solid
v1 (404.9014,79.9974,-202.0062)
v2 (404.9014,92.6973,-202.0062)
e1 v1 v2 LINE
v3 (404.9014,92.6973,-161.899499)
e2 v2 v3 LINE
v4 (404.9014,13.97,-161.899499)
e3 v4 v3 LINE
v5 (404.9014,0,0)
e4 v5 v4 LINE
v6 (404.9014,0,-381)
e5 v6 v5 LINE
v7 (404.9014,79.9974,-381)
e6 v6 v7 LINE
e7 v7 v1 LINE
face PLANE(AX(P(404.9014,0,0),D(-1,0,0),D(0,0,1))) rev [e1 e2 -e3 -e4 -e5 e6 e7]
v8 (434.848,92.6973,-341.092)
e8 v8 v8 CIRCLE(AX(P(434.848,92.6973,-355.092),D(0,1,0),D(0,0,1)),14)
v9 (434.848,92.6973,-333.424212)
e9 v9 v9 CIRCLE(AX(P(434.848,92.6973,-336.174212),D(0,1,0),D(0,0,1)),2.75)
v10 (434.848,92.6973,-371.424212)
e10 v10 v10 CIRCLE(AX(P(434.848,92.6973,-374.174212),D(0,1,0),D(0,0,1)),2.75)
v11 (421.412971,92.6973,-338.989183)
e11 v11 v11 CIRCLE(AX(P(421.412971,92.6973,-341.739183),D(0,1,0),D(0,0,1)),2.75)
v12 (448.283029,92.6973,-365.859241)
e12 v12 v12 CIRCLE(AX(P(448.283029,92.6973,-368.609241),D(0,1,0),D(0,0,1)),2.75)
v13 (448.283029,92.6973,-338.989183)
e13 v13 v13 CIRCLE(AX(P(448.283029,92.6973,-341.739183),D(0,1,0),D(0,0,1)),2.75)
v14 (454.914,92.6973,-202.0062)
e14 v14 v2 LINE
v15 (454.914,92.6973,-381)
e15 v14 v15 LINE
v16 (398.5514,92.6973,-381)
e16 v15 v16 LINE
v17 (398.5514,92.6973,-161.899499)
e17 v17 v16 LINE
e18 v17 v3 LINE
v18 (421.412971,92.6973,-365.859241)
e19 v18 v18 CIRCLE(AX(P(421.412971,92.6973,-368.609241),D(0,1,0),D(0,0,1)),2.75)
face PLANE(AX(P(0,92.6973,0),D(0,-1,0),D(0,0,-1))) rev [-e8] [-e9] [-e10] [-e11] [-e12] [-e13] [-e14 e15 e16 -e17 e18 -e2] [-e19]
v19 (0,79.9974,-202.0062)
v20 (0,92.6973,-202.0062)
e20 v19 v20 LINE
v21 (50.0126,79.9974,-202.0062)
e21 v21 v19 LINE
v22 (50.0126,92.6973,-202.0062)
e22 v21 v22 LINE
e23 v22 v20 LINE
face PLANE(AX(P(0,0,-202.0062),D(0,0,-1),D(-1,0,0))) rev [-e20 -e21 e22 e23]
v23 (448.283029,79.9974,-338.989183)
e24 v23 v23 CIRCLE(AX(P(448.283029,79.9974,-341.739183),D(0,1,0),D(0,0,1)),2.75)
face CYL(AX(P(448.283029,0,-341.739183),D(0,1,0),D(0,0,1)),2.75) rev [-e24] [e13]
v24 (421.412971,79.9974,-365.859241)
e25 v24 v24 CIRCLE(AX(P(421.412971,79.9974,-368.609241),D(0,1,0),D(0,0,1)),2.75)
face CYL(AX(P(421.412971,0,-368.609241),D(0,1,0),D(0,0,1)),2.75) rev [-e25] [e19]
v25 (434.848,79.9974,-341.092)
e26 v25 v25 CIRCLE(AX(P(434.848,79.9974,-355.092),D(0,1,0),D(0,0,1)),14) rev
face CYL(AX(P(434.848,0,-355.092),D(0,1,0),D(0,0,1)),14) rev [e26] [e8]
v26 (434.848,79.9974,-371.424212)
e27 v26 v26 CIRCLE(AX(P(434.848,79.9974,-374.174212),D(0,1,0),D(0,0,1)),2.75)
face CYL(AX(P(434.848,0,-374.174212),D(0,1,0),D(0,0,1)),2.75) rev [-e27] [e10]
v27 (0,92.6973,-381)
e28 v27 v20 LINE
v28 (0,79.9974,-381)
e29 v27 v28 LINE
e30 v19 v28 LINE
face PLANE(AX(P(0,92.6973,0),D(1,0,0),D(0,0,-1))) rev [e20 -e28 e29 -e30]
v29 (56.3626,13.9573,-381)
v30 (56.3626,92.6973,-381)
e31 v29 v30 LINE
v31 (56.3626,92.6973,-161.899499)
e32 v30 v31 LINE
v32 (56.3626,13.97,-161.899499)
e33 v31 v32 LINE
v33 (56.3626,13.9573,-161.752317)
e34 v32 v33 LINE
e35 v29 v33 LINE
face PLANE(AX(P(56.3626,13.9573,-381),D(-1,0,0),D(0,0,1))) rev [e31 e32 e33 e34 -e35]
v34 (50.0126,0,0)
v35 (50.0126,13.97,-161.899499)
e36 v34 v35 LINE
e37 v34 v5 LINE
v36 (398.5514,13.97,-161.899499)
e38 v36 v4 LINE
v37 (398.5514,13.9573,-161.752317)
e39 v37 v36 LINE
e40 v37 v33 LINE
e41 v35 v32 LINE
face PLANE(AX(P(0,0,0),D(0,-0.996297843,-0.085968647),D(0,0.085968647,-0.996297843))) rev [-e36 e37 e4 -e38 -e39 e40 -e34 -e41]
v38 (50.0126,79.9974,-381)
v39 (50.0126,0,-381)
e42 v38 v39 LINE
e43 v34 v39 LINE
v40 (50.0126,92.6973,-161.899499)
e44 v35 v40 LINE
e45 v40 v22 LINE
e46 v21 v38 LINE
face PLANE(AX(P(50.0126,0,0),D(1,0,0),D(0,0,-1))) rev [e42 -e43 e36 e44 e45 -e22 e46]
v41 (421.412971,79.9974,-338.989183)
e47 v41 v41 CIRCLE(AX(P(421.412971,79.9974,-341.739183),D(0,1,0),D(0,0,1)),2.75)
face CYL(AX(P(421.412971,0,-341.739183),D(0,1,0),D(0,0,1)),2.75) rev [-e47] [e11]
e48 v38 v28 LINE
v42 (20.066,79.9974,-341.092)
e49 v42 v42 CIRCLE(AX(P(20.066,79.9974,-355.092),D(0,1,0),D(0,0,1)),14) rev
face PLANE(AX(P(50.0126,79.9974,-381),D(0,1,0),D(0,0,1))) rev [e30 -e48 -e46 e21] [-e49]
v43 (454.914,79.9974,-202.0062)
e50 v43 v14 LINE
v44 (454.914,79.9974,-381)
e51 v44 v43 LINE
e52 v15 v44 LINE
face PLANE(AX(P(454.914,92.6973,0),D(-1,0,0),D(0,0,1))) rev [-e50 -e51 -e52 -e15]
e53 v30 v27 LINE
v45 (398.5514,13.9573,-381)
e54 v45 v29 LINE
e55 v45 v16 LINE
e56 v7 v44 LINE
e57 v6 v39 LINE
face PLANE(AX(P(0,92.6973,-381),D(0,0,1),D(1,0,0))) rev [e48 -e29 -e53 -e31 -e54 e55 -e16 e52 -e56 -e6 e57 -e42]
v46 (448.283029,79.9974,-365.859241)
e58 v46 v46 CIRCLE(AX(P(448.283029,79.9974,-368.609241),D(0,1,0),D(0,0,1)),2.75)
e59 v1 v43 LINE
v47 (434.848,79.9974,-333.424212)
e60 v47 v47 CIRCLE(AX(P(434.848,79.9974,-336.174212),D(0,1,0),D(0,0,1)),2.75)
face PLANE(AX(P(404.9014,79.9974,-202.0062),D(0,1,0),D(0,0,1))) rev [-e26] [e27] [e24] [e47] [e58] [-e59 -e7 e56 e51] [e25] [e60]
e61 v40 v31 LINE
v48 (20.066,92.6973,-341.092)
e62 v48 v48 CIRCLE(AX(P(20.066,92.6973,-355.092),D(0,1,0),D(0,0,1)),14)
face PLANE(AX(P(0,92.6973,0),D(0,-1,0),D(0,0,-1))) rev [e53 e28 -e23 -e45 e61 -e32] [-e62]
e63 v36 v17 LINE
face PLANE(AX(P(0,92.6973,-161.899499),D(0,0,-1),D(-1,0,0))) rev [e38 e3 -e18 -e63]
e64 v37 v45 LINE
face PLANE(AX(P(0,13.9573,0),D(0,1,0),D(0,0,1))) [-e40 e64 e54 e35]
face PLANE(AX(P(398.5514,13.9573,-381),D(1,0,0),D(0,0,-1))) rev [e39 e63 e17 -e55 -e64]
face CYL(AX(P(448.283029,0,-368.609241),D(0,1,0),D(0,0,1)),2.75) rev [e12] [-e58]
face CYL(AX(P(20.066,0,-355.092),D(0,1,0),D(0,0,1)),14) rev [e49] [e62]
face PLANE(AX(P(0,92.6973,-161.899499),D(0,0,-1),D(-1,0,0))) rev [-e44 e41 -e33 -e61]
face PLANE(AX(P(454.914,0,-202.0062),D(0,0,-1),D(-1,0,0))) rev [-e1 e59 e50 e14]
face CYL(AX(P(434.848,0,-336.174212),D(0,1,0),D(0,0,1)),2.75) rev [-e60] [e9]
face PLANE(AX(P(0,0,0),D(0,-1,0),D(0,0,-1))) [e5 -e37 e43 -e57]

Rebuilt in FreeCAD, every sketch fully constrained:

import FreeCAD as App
import Part
import Sketcher

V = App.Vector
Q = App.Units.Quantity

doc = App.newDocument("Part")
body = doc.addObject("PartDesign::Body", "Body")

sketch1 = body.newObject("Sketcher::SketchObject", "Sketch")
sketch1.AttachmentSupport = (doc.getObject("XZ_Plane"), [""])
sketch1.MapMode = "FlatFace"
sketch1.addGeometry(Part.LineSegment(V(0, -381, 0), V(0, 0, 0)), False)
sketch1.addGeometry(Part.LineSegment(V(0, 0, 0), V(455, 0, 0)), False)
sketch1.addGeometry(Part.LineSegment(V(455, 0, 0), V(455, -381, 0)), False)
sketch1.addGeometry(Part.LineSegment(V(455, -381, 0), V(0, -381, 0)), False)
sketch1.addConstraint(Sketcher.Constraint("Coincident", 0, 2, 1, 1))
sketch1.addConstraint(Sketcher.Constraint("Coincident", 1, 2, 2, 1))
sketch1.addConstraint(Sketcher.Constraint("Coincident", 2, 2, 3, 1))
sketch1.addConstraint(Sketcher.Constraint("Coincident", 3, 2, 0, 1))
sketch1.addConstraint(Sketcher.Constraint("Vertical", 0))
sketch1.addConstraint(Sketcher.Constraint("Horizontal", 1))
sketch1.addConstraint(Sketcher.Constraint("Vertical", 2))
sketch1.addConstraint(Sketcher.Constraint("Horizontal", 3))
sketch1.addConstraint(Sketcher.Constraint("Coincident", 0, 2, -1, 1))
sketch1.addConstraint(Sketcher.Constraint("DistanceY", 0, 1, 0, 2, Q("15 in")))
sketch1.addConstraint(Sketcher.Constraint("DistanceX", 1, 1, 1, 2, Q("17.91 in")))
pad1 = body.newObject("PartDesign::Pad", "Pad")
pad1.Profile = sketch1
pad1.Length = Q("3.6495 in")
pad1.Reversed = True

sketch2 = body.newObject("Sketcher::SketchObject", "Sketch001")
sketch2.AttachmentSupport = (doc.getObject("XZ_Plane"), [""])
sketch2.MapMode = "FlatFace"
sketch2.AttachmentOffset = App.Placement(V(0, 0, -3.6495 * 25.4), App.Rotation())
sketch2.addGeometry(Part.LineSegment(V(405, -202, 0), V(405, 0, 0)), False)
sketch2.addGeometry(Part.LineSegment(V(405, 0, 0), V(455, 0, 0)), False)
sketch2.addGeometry(Part.LineSegment(V(455, 0, 0), V(455, -202, 0)), False)
sketch2.addGeometry(Part.LineSegment(V(455, -202, 0), V(405, -202, 0)), False)
sketch2.addGeometry(Part.LineSegment(V(0, -202, 0), V(0, 0, 0)), False)
sketch2.addGeometry(Part.LineSegment(V(0, 0, 0), V(50, 0, 0)), False)
sketch2.addGeometry(Part.LineSegment(V(50, 0, 0), V(50, -202, 0)), False)
sketch2.addGeometry(Part.LineSegment(V(50, -202, 0), V(0, -202, 0)), False)
sketch2.addConstraint(Sketcher.Constraint("Coincident", 0, 2, 1, 1))
sketch2.addConstraint(Sketcher.Constraint("Coincident", 1, 2, 2, 1))
sketch2.addConstraint(Sketcher.Constraint("Coincident", 2, 2, 3, 1))
sketch2.addConstraint(Sketcher.Constraint("Coincident", 3, 2, 0, 1))
sketch2.addConstraint(Sketcher.Constraint("Coincident", 4, 2, 5, 1))
sketch2.addConstraint(Sketcher.Constraint("Coincident", 5, 2, 6, 1))
sketch2.addConstraint(Sketcher.Constraint("Coincident", 6, 2, 7, 1))
sketch2.addConstraint(Sketcher.Constraint("Coincident", 7, 2, 4, 1))
sketch2.addConstraint(Sketcher.Constraint("Vertical", 0))
sketch2.addConstraint(Sketcher.Constraint("Horizontal", 1))
sketch2.addConstraint(Sketcher.Constraint("Vertical", 2))
sketch2.addConstraint(Sketcher.Constraint("Horizontal", 3))
sketch2.addConstraint(Sketcher.Constraint("Vertical", 4))
sketch2.addConstraint(Sketcher.Constraint("Horizontal", 5))
sketch2.addConstraint(Sketcher.Constraint("Vertical", 6))
sketch2.addConstraint(Sketcher.Constraint("Horizontal", 7))
sketch2.addConstraint(Sketcher.Constraint("Coincident", 4, 2, -1, 1))
sketch2.addConstraint(Sketcher.Constraint("PointOnObject", 0, 2, -1))
sketch2.addConstraint(Sketcher.Constraint("Horizontal", 3, 2, 6, 2))
sketch2.addConstraint(Sketcher.Constraint("Equal", 3, 5))
sketch2.addConstraint(Sketcher.Constraint("DistanceX", 1, 1, 1, 2, Q("1.969 in")))
sketch2.addConstraint(Sketcher.Constraint("DistanceY", 0, 1, 0, 2, Q("7.953 in")))
sketch2.addConstraint(Sketcher.Constraint("DistanceX", -1, 1, 1, 2, Q("17.91 in")))
pocket1 = body.newObject("PartDesign::Pocket", "Pocket")
pocket1.Profile = sketch2
pocket1.Type = "ThroughAll"
pocket1.Reversed = True

sketch3 = body.newObject("Sketcher::SketchObject", "Sketch002")
sketch3.AttachmentSupport = (doc.getObject("XZ_Plane"), [""])
sketch3.MapMode = "FlatFace"
sketch3.AttachmentOffset = App.Placement(V(0, 0, -3.6495 * 25.4), App.Rotation())
sketch3.addGeometry(Part.Circle(V(20, -355, 0), V(0, 0, 1), 14), False)
sketch3.addGeometry(Part.Circle(V(435, -355, 0), V(0, 0, 1), 14), False)
sketch3.addConstraint(Sketcher.Constraint("Equal", 0, 1))
sketch3.addConstraint(Sketcher.Constraint("Horizontal", 0, 3, 1, 3))
sketch3.addConstraint(Sketcher.Constraint("Diameter", 0, Q("28 mm")))
sketch3.addConstraint(Sketcher.Constraint("DistanceX", -1, 1, 0, 3, Q("0.79 in")))
sketch3.addConstraint(Sketcher.Constraint("DistanceY", 0, 3, -1, 1, Q("13.98 in")))
sketch3.addConstraint(Sketcher.Constraint("DistanceX", -1, 1, 1, 3, Q("17.12 in")))
pocket2 = body.newObject("PartDesign::Pocket", "Pocket001")
pocket2.Profile = sketch3
pocket2.Type = "ThroughAll"
pocket2.Reversed = True

sketch4 = body.newObject("Sketcher::SketchObject", "Sketch003")
sketch4.AttachmentSupport = (doc.getObject("XZ_Plane"), [""])
sketch4.MapMode = "FlatFace"
sketch4.AttachmentOffset = App.Placement(V(0, 0, -3.6495 * 25.4), App.Rotation())
sketch4.addGeometry(Part.LineSegment(V(56, -381, 0), V(56, 0, 0)), False)
sketch4.addGeometry(Part.LineSegment(V(56, 0, 0), V(399, 0, 0)), False)
sketch4.addGeometry(Part.LineSegment(V(399, 0, 0), V(399, -381, 0)), False)
sketch4.addGeometry(Part.LineSegment(V(399, -381, 0), V(56, -381, 0)), False)
sketch4.addConstraint(Sketcher.Constraint("Coincident", 0, 2, 1, 1))
sketch4.addConstraint(Sketcher.Constraint("Coincident", 1, 2, 2, 1))
sketch4.addConstraint(Sketcher.Constraint("Coincident", 2, 2, 3, 1))
sketch4.addConstraint(Sketcher.Constraint("Coincident", 3, 2, 0, 1))
sketch4.addConstraint(Sketcher.Constraint("Vertical", 0))
sketch4.addConstraint(Sketcher.Constraint("Horizontal", 1))
sketch4.addConstraint(Sketcher.Constraint("Vertical", 2))
sketch4.addConstraint(Sketcher.Constraint("Horizontal", 3))
sketch4.addConstraint(Sketcher.Constraint("PointOnObject", 0, 2, -1))
sketch4.addConstraint(Sketcher.Constraint("DistanceY", 0, 1, 0, 2, Q("15 in")))
sketch4.addConstraint(Sketcher.Constraint("DistanceX", 1, 1, 1, 2, Q("13.472 in")))
sketch4.addConstraint(Sketcher.Constraint("DistanceX", -1, 1, 0, 2, Q("2.219 in")))
pocket3 = body.newObject("PartDesign::Pocket", "Pocket002")
pocket3.Profile = sketch4
pocket3.Length = Q("3.1 in")
pocket3.Reversed = True

sketch5 = body.newObject("Sketcher::SketchObject", "Sketch004")
sketch5.AttachmentSupport = (doc.getObject("YZ_Plane"), [""])
sketch5.MapMode = "FlatFace"
sketch5.AttachmentOffset = App.Placement(V(0, 0, 17.91 * 25.4), App.Rotation())
sketch5.addGeometry(Part.LineSegment(V(80, -202, 0), V(0, -202, 0)), False)
sketch5.addGeometry(Part.LineSegment(V(0, -202, 0), V(0, -381, 0)), False)
sketch5.addGeometry(Part.LineSegment(V(0, -381, 0), V(80, -381, 0)), False)
sketch5.addGeometry(Part.LineSegment(V(80, -381, 0), V(80, -202, 0)), False)
sketch5.addConstraint(Sketcher.Constraint("Coincident", 0, 2, 1, 1))
sketch5.addConstraint(Sketcher.Constraint("Coincident", 1, 2, 2, 1))
sketch5.addConstraint(Sketcher.Constraint("Coincident", 2, 2, 3, 1))
sketch5.addConstraint(Sketcher.Constraint("Coincident", 3, 2, 0, 1))
sketch5.addConstraint(Sketcher.Constraint("Horizontal", 0))
sketch5.addConstraint(Sketcher.Constraint("Vertical", 1))
sketch5.addConstraint(Sketcher.Constraint("Horizontal", 2))
sketch5.addConstraint(Sketcher.Constraint("Vertical", 3))
sketch5.addConstraint(Sketcher.Constraint("PointOnObject", 0, 2, -2))
sketch5.addConstraint(Sketcher.Constraint("DistanceY", 1, 2, -1, 1, Q("15 in")))
sketch5.addConstraint(Sketcher.Constraint("DistanceY", 1, 2, 1, 1, Q("7.047 in")))
sketch5.addConstraint(Sketcher.Constraint("DistanceX", 0, 2, 0, 1, Q("79.9974 mm")))
pocket4 = body.newObject("PartDesign::Pocket", "Pocket003")
pocket4.Profile = sketch5
pocket4.Length = Q("1.969 in")

sketch6 = body.newObject("Sketcher::SketchObject", "Sketch005")
sketch6.AttachmentSupport = (doc.getObject("YZ_Plane"), [""])
sketch6.MapMode = "FlatFace"
sketch6.addGeometry(Part.LineSegment(V(80, -381, 0), V(0, -381, 0)), False)
sketch6.addGeometry(Part.LineSegment(V(0, -381, 0), V(0, -202, 0)), False)
sketch6.addGeometry(Part.LineSegment(V(0, -202, 0), V(80, -202, 0)), False)
sketch6.addGeometry(Part.LineSegment(V(80, -202, 0), V(80, -381, 0)), False)
sketch6.addConstraint(Sketcher.Constraint("Coincident", 0, 2, 1, 1))
sketch6.addConstraint(Sketcher.Constraint("Coincident", 1, 2, 2, 1))
sketch6.addConstraint(Sketcher.Constraint("Coincident", 2, 2, 3, 1))
sketch6.addConstraint(Sketcher.Constraint("Coincident", 3, 2, 0, 1))
sketch6.addConstraint(Sketcher.Constraint("Horizontal", 0))
sketch6.addConstraint(Sketcher.Constraint("Vertical", 1))
sketch6.addConstraint(Sketcher.Constraint("Horizontal", 2))
sketch6.addConstraint(Sketcher.Constraint("Vertical", 3))
sketch6.addConstraint(Sketcher.Constraint("PointOnObject", 0, 2, -2))
sketch6.addConstraint(Sketcher.Constraint("DistanceY", 0, 2, -1, 1, Q("15 in")))
sketch6.addConstraint(Sketcher.Constraint("DistanceY", 1, 1, 1, 2, Q("7.047 in")))
sketch6.addConstraint(Sketcher.Constraint("DistanceX", 0, 2, 0, 1, Q("79.9974 mm")))
pocket5 = body.newObject("PartDesign::Pocket", "Pocket004")
pocket5.Profile = sketch6
pocket5.Length = Q("1.969 in")
pocket5.Reversed = True

sketch7 = body.newObject("Sketcher::SketchObject", "Sketch006")
sketch7.AttachmentSupport = (doc.getObject("YZ_Plane"), [""])
sketch7.MapMode = "FlatFace"
sketch7.AttachmentOffset = App.Placement(V(0, 0, 15.941 * 25.4), App.Rotation())
sketch7.addGeometry(Part.LineSegment(V(0, 0, 0), V(14, -162, 0)), False)
sketch7.addGeometry(Part.LineSegment(V(14, -162, 0), V(93, -162, 0)), False)
sketch7.addGeometry(Part.LineSegment(V(93, -162, 0), V(93, 0, 0)), False)
sketch7.addGeometry(Part.LineSegment(V(93, 0, 0), V(0, 0, 0)), False)
sketch7.addConstraint(Sketcher.Constraint("Coincident", 0, 2, 1, 1))
sketch7.addConstraint(Sketcher.Constraint("Coincident", 1, 2, 2, 1))
sketch7.addConstraint(Sketcher.Constraint("Coincident", 2, 2, 3, 1))
sketch7.addConstraint(Sketcher.Constraint("Coincident", 3, 2, 0, 1))
sketch7.addConstraint(Sketcher.Constraint("Horizontal", 1))
sketch7.addConstraint(Sketcher.Constraint("Vertical", 2))
sketch7.addConstraint(Sketcher.Constraint("Horizontal", 3))
sketch7.addConstraint(Sketcher.Constraint("Coincident", 3, 2, -1, 1))
sketch7.addConstraint(Sketcher.Constraint("DistanceX", -1, 1, 0, 2, Q("0.55 in")))
sketch7.addConstraint(Sketcher.Constraint("DistanceX", 1, 1, 1, 2, Q("3.0995 in")))
sketch7.addConstraint(Sketcher.Constraint("DistanceY", 2, 1, 2, 2, Q("161.899499 mm")))
pocket6 = body.newObject("PartDesign::Pocket", "Pocket005")
pocket6.Profile = sketch7
pocket6.Type = "ThroughAll"

sketch8 = body.newObject("Sketcher::SketchObject", "Sketch007")
sketch8.AttachmentSupport = (doc.getObject("XZ_Plane"), [""])
sketch8.MapMode = "FlatFace"
sketch8.AttachmentOffset = App.Placement(V(0, 0, -3.6495 * 25.4), App.Rotation())
sketch8.addGeometry(Part.Circle(V(434.8, -374.2, 0), V(0, 0, 1), 2.8), False)
sketch8.addGeometry(Part.Circle(V(448.3, -368.6, 0), V(0, 0, 1), 2.8), False)
sketch8.addGeometry(Part.Circle(V(421.4, -368.6, 0), V(0, 0, 1), 2.8), False)
sketch8.addGeometry(Part.Circle(V(448.3, -341.7, 0), V(0, 0, 1), 2.8), False)
sketch8.addGeometry(Part.Circle(V(434.8, -336.2, 0), V(0, 0, 1), 2.8), False)
sketch8.addGeometry(Part.Circle(V(421.4, -341.7, 0), V(0, 0, 1), 2.8), False)
sketch8.addConstraint(Sketcher.Constraint("Equal", 0, 1))
sketch8.addConstraint(Sketcher.Constraint("Equal", 1, 2))
sketch8.addConstraint(Sketcher.Constraint("Equal", 2, 3))
sketch8.addConstraint(Sketcher.Constraint("Equal", 3, 4))
sketch8.addConstraint(Sketcher.Constraint("Equal", 4, 5))
sketch8.addConstraint(Sketcher.Constraint("Horizontal", 1, 3, 2, 3))
sketch8.addConstraint(Sketcher.Constraint("Horizontal", 3, 3, 5, 3))
sketch8.addConstraint(Sketcher.Constraint("Vertical", 1, 3, 3, 3))
sketch8.addConstraint(Sketcher.Constraint("Vertical", 0, 3, 4, 3))
sketch8.addConstraint(Sketcher.Constraint("Vertical", 2, 3, 5, 3))
sketch8.addConstraint(Sketcher.Constraint("Diameter", 0, Q("5.5 mm")))
sketch8.addConstraint(Sketcher.Constraint("DistanceX", -1, 1, 0, 3, Q("17.12 in")))
sketch8.addConstraint(Sketcher.Constraint("DistanceY", 0, 3, 4, 3, Q("38 mm")))
sketch8.addConstraint(Sketcher.Constraint("DistanceY", 0, 3, -1, 1, Q("374.174212 mm")))
sketch8.addConstraint(Sketcher.Constraint("DistanceX", -1, 1, 1, 3, Q("448.283029 mm")))
sketch8.addConstraint(Sketcher.Constraint("DistanceY", 1, 3, -1, 1, Q("368.609241 mm")))
sketch8.addConstraint(Sketcher.Constraint("DistanceX", -1, 1, 2, 3, Q("421.412971 mm")))
sketch8.addConstraint(Sketcher.Constraint("DistanceY", 0, 3, 3, 3, Q("32.435029 mm")))
pocket7 = body.newObject("PartDesign::Pocket", "Pocket006")
pocket7.Profile = sketch8
pocket7.Type = "ThroughAll"
pocket7.Reversed = True

doc.recompute()
